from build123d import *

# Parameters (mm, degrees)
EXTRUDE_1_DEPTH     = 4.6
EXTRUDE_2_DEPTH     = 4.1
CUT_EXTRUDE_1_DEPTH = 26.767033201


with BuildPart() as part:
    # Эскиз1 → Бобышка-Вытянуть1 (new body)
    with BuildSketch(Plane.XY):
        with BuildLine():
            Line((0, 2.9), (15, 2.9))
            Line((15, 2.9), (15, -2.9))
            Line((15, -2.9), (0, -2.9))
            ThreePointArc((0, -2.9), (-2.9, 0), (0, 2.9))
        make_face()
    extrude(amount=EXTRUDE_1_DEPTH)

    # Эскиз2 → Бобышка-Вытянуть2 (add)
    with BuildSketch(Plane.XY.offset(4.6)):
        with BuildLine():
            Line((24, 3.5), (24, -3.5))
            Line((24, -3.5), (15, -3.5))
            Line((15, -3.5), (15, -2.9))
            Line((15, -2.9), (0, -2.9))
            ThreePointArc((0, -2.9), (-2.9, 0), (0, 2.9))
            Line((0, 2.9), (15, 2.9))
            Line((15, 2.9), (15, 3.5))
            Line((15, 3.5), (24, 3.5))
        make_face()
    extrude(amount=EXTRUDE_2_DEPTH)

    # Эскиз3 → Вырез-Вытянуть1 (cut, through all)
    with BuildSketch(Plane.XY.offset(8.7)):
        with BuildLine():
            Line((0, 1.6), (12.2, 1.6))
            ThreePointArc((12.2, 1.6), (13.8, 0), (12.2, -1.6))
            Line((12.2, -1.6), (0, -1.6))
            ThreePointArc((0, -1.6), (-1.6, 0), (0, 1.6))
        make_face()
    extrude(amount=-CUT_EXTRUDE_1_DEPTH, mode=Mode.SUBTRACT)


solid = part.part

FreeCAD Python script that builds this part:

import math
import FreeCAD as App
import Part
import Sketcher

V = App.Vector

doc = App.newDocument("Part")
params = doc.addObject("Spreadsheet::Sheet", "Params")
for row, (alias, value) in enumerate([
    ("sketch1_radius", "2.9 mm"),
    ("sketch1_width", "15 mm"),
    ("pad1_length", "4.6 mm"),
    ("sketch2_radius", "2.9 mm"),
    ("sketch2_width", "9 mm"),
    ("sketch2_width2", "15 mm"),
    ("sketch2_height", "7 mm"),
    ("pad2_length", "4.1 mm"),
    ("sketch3_radius", "1.6 mm"),
    ("sketch3_width", "12.2 mm"),
], start=1):
    params.set(f"A{row}", alias)
    params.set(f"B{row}", "=" + value)
    params.setAlias(f"B{row}", alias)

body = doc.addObject("PartDesign::Body", "Body")

# Sketch on XY plane
sketch1 = body.newObject("Sketcher::SketchObject", "Sketch")
sketch1.AttachmentSupport = (doc.getObject("XY_Plane"), [""])
sketch1.MapMode = "FlatFace"
sketch1.addGeometry([
    Part.LineSegment(V(15, 2.9, 0), V(0, 2.9, 0)),
    Part.ArcOfCircle(Part.Circle(V(0, 0, 0), V(0, 0, 1), 2.9), math.radians(90), math.radians(270)),
    Part.LineSegment(V(0, -2.9, 0), V(15, -2.9, 0)),
    Part.LineSegment(V(15, -2.9, 0), V(15, 2.9, 0)),
], False)
sketch1.addConstraint([
    Sketcher.Constraint("Tangent", 0, 2, 1, 1),
    Sketcher.Constraint("Tangent", 1, 2, 2, 1),
    Sketcher.Constraint("Coincident", 2, 2, 3, 1),
    Sketcher.Constraint("Coincident", 3, 2, 0, 1),
    Sketcher.Constraint("Horizontal", 0),
    Sketcher.Constraint("Horizontal", 2),
    Sketcher.Constraint("Vertical", 3),
    Sketcher.Constraint("Coincident", 1, 3, -1, 1),
    Sketcher.Constraint("Radius", 1, 2.9),
    Sketcher.Constraint("DistanceX", 0, 2, 0, 1, 15.0),
])
sketch1.setExpression("Constraints[8]", "Params.sketch1_radius")
sketch1.setExpression("Constraints[9]", "Params.sketch1_width")
pad1 = body.newObject("PartDesign::Pad", "Pad")
pad1.Profile = sketch1
pad1.setExpression("Length", "Params.pad1_length")

# Sketch on XY plane
sketch2 = body.newObject("Sketcher::SketchObject", "Sketch001")
sketch2.AttachmentSupport = (doc.getObject("XY_Plane"), [""])
sketch2.MapMode = "FlatFace"
sketch2.AttachmentOffset = App.Placement(V(0, 0, 4.6), App.Rotation())
sketch2.addGeometry([
    Part.LineSegment(V(24, -3.5, 0), V(24, 3.5, 0)),  # 0
    Part.LineSegment(V(24, 3.5, 0), V(15, 3.5, 0)),  # 1
    Part.LineSegment(V(15, 3.5, 0), V(15, 2.9, 0)),  # 2
    Part.LineSegment(V(15, 2.9, 0), V(0, 2.9, 0)),  # 3
    Part.ArcOfCircle(Part.Circle(V(0, 0, 0), V(0, 0, 1), 2.9), math.radians(90), math.radians(270)),  # 4
    Part.LineSegment(V(0, -2.9, 0), V(15, -2.9, 0)),  # 5
    Part.LineSegment(V(15, -2.9, 0), V(15, -3.5, 0)),  # 6
    Part.LineSegment(V(15, -3.5, 0), V(24, -3.5, 0)),  # 7
], False)
sketch2.addConstraint([
    Sketcher.Constraint("Coincident", 0, 2, 1, 1),
    Sketcher.Constraint("Coincident", 1, 2, 2, 1),
    Sketcher.Constraint("Coincident", 2, 2, 3, 1),
    Sketcher.Constraint("Tangent", 3, 2, 4, 1),
    Sketcher.Constraint("Tangent", 4, 2, 5, 1),
    Sketcher.Constraint("Coincident", 5, 2, 6, 1),
    Sketcher.Constraint("Coincident", 6, 2, 7, 1),
    Sketcher.Constraint("Coincident", 7, 2, 0, 1),
    Sketcher.Constraint("Vertical", 0),
    Sketcher.Constraint("Horizontal", 1),
    Sketcher.Constraint("Vertical", 2),
    Sketcher.Constraint("Horizontal", 3),
    Sketcher.Constraint("Horizontal", 5),
    Sketcher.Constraint("Vertical", 6),
    Sketcher.Constraint("Horizontal", 7),
    Sketcher.Constraint("Coincident", 4, 3, -1, 1),
    Sketcher.Constraint("Symmetric", 1, 2, 6, 2, -1),
    Sketcher.Constraint("Radius", 4, 2.9),
    Sketcher.Constraint("DistanceX", 1, 2, 1, 1, 9.0),
    Sketcher.Constraint("DistanceX", 3, 2, 3, 1, 15.0),
    Sketcher.Constraint("DistanceY", 0, 1, 0, 2, 7.0),
])
sketch2.setExpression("Constraints[17]", "Params.sketch2_radius")
sketch2.setExpression("Constraints[18]", "Params.sketch2_width")
sketch2.setExpression("Constraints[19]", "Params.sketch2_width2")
sketch2.setExpression("Constraints[20]", "Params.sketch2_height")
pad2 = body.newObject("PartDesign::Pad", "Pad001")
pad2.Profile = sketch2
pad2.setExpression("Length", "Params.pad2_length")

# Sketch on XY plane
sketch3 = body.newObject("Sketcher::SketchObject", "Sketch002")
sketch3.AttachmentSupport = (doc.getObject("XY_Plane"), [""])
sketch3.MapMode = "FlatFace"
sketch3.AttachmentOffset = App.Placement(V(0, 0, 8.7), App.Rotation())
sketch3.addGeometry([
    Part.LineSegment(V(12.2, 1.6, 0), V(0, 1.6, 0)),
    Part.ArcOfCircle(Part.Circle(V(0, 0, 0), V(0, 0, 1), 1.6), math.radians(90), math.radians(270)),
    Part.LineSegment(V(0, -1.6, 0), V(12.2, -1.6, 0)),
    Part.ArcOfCircle(Part.Circle(V(12.2, 0, 0), V(0, 0, 1), 1.6), math.radians(-90), math.radians(90)),
], False)
sketch3.addConstraint([
    Sketcher.Constraint("Tangent", 0, 2, 1, 1),
    Sketcher.Constraint("Tangent", 1, 2, 2, 1),
    Sketcher.Constraint("Tangent", 2, 2, 3, 1),
    Sketcher.Constraint("Tangent", 3, 2, 0, 1),
    Sketcher.Constraint("Horizontal", 0),
    Sketcher.Constraint("Horizontal", 2),
    Sketcher.Constraint("Coincident", 1, 3, -1, 1),
    Sketcher.Constraint("Radius", 1, 1.6),
    Sketcher.Constraint("DistanceX", 0, 2, 0, 1, 12.2),
])
sketch3.setExpression("Constraints[7]", "Params.sketch3_radius")
sketch3.setExpression("Constraints[8]", "Params.sketch3_width")
pocket1 = body.newObject("PartDesign::Pocket", "Pocket")
pocket1.Profile = sketch3
pocket1.Type = "ThroughAll"

doc.recompute()
